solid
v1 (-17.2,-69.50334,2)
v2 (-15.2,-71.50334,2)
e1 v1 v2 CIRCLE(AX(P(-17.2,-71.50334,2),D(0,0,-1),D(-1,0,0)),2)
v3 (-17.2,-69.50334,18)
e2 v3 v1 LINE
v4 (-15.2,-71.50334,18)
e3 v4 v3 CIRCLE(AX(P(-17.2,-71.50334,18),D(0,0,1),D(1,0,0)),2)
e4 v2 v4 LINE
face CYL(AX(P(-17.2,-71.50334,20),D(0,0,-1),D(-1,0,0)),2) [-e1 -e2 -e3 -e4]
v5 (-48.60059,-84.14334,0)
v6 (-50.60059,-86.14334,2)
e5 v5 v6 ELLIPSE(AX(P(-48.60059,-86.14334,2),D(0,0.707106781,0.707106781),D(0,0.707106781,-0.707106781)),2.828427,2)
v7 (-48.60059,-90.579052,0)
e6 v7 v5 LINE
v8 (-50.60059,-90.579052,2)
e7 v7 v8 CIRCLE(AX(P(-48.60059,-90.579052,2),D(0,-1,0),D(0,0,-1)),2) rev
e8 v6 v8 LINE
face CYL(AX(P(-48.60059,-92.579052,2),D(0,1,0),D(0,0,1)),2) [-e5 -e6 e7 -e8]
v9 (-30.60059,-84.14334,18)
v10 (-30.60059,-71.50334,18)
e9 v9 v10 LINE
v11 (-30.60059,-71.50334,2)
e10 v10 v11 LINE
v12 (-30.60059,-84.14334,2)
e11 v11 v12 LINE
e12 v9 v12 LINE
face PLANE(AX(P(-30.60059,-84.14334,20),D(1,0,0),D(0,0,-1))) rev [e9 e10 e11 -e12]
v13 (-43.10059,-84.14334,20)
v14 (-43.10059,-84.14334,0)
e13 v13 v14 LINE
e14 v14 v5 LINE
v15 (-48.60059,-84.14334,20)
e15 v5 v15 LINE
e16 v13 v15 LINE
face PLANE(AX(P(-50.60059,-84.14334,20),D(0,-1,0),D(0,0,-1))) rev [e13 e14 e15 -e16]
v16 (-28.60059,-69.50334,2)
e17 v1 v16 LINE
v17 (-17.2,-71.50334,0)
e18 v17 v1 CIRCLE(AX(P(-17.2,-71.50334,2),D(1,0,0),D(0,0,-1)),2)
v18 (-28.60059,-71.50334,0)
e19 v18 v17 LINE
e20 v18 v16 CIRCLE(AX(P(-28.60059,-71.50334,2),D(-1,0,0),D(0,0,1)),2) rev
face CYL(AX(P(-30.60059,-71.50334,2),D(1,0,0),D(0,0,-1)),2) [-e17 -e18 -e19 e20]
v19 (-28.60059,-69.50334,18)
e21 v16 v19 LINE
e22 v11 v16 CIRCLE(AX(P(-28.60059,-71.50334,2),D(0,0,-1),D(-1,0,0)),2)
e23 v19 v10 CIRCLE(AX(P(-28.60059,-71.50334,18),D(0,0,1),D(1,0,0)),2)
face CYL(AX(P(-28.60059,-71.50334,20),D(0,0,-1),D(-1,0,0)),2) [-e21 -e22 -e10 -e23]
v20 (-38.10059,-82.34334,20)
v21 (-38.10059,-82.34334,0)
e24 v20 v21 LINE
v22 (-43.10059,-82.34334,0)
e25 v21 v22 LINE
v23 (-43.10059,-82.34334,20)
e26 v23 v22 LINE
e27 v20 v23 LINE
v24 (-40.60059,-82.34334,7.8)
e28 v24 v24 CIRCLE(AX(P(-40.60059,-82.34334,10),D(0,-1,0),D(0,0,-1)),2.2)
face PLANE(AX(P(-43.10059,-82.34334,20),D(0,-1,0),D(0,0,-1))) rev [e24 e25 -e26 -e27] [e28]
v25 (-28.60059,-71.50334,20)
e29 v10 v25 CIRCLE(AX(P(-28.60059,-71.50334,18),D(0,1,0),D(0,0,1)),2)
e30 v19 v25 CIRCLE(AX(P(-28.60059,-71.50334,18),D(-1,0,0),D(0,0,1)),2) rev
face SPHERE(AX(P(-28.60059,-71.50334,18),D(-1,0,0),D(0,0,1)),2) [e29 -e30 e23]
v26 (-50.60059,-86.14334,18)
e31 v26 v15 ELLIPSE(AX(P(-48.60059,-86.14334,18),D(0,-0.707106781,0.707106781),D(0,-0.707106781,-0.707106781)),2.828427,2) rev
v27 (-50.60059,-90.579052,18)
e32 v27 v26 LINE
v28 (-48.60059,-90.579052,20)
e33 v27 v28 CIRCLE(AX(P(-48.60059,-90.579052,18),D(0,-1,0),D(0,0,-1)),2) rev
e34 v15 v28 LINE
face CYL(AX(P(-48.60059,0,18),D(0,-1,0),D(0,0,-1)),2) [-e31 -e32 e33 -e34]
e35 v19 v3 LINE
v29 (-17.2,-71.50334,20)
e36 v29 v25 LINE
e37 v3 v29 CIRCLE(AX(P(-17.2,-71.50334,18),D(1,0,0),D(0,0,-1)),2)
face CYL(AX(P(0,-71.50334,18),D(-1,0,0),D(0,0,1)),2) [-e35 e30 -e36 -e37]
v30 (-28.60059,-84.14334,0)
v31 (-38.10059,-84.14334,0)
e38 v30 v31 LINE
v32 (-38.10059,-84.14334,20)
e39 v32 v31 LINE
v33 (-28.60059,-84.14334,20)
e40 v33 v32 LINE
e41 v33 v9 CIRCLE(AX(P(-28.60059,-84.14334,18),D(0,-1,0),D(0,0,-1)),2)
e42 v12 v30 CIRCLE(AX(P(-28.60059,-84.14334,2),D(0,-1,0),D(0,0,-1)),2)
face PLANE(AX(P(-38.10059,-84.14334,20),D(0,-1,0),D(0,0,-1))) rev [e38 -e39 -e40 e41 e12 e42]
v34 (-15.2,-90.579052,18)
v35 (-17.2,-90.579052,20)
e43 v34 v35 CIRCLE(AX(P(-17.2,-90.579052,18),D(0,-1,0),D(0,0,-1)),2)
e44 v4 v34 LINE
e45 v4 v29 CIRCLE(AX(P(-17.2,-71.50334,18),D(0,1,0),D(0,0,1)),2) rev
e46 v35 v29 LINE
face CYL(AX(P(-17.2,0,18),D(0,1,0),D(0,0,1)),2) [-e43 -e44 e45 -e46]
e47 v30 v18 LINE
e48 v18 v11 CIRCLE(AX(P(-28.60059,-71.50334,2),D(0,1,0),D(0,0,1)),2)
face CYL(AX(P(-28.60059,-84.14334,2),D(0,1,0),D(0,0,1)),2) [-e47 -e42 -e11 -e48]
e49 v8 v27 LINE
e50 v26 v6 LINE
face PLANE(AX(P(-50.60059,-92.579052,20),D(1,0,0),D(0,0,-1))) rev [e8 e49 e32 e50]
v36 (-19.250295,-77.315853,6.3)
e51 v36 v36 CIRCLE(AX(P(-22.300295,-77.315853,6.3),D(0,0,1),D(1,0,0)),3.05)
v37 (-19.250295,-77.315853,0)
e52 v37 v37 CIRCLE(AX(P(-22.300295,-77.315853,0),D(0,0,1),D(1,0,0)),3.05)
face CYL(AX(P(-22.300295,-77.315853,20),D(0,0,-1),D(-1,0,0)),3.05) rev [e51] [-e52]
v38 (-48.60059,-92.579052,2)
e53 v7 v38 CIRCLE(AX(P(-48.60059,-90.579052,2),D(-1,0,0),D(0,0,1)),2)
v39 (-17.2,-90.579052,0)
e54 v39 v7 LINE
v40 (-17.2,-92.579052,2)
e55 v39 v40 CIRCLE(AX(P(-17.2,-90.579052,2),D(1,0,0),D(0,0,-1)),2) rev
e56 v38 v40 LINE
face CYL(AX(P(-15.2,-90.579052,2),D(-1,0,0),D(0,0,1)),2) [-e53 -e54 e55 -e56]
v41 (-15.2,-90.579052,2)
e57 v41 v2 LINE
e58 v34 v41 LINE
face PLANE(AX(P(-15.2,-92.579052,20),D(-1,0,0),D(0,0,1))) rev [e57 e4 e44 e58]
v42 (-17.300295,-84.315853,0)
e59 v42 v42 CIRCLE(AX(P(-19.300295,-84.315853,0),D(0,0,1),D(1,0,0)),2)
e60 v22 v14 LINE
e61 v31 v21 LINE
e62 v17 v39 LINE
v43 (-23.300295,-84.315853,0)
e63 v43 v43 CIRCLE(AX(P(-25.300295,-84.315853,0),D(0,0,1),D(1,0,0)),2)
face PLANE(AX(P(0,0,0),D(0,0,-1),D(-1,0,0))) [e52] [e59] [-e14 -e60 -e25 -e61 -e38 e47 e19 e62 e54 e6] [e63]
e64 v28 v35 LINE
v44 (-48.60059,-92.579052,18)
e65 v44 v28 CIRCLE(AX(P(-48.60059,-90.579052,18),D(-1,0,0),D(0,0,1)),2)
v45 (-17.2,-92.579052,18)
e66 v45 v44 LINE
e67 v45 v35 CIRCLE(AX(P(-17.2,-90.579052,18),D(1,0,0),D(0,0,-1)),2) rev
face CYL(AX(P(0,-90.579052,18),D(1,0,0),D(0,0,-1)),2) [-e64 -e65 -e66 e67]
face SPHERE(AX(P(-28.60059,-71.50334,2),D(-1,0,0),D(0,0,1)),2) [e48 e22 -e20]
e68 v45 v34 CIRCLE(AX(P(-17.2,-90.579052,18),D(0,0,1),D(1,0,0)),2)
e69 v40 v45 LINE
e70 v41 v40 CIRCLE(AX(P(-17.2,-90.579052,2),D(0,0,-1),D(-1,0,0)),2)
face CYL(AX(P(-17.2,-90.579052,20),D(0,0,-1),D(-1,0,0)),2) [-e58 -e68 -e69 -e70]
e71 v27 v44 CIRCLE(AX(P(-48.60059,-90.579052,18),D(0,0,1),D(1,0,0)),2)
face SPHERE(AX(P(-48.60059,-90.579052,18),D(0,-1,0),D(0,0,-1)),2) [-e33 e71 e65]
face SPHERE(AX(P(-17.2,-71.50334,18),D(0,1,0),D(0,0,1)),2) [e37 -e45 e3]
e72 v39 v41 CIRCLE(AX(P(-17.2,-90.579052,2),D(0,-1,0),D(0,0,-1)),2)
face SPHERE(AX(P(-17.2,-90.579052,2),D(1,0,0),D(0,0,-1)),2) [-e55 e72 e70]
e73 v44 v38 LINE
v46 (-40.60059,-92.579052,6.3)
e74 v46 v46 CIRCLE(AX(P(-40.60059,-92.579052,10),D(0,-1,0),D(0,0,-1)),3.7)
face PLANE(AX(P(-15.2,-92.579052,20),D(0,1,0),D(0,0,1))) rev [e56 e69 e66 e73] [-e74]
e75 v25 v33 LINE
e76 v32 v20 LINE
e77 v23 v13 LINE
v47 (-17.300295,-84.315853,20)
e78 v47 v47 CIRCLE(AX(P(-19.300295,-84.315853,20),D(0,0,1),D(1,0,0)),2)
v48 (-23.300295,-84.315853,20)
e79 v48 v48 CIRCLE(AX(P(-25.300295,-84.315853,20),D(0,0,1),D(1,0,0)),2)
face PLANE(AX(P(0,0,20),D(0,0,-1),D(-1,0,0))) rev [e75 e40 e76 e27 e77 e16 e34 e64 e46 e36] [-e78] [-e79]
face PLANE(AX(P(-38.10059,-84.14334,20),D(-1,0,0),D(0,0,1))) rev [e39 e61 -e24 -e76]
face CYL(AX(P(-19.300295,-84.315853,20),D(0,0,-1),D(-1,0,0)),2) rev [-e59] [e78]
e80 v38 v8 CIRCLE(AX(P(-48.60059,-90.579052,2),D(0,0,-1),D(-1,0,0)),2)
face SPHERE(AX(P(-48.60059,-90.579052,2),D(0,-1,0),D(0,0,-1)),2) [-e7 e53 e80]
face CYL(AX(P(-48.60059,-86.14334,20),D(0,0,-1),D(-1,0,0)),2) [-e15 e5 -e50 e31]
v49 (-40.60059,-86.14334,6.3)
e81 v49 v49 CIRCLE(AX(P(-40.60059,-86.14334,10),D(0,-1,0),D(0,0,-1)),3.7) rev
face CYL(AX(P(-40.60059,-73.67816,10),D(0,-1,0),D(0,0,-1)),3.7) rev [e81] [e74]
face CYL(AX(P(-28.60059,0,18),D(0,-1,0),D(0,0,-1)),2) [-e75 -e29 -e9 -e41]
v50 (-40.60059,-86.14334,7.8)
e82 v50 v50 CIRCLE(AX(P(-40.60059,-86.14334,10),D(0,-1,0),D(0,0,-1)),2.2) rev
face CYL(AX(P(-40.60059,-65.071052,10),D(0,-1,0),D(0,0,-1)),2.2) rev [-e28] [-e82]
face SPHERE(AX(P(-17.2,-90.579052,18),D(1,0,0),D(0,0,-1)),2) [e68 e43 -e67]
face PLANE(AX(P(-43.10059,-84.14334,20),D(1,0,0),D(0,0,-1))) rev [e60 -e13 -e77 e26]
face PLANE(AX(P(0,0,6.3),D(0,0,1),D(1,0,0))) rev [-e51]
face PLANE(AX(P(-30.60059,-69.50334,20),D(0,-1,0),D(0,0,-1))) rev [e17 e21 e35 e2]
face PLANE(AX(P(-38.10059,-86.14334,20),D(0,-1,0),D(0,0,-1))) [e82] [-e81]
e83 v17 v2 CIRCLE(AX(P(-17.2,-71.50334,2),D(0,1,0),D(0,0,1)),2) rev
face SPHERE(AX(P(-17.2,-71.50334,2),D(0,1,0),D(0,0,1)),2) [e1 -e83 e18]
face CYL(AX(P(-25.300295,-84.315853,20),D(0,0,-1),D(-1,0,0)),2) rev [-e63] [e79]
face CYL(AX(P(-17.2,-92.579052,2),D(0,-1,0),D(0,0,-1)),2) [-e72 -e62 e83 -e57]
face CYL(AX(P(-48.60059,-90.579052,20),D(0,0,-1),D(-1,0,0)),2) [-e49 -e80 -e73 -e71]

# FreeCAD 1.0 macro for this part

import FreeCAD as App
import Part
import Sketcher

V = App.Vector
Q = App.Units.Quantity


def edges_at(feature, points):
    """Names of the edges that pass closest to the given points."""
    edges = feature.Shape.Edges
    near = lambda p: min(range(len(edges)), key=lambda i: edges[i].distToShape(Part.Vertex(*p))[0])
    return sorted({f"Edge{near(p) + 1}" for p in points})


def add_polygon(sketch, points):
    """Adds a closed chain of lines whose ends are joined by coincident constraints."""
    first, n = sketch.GeometryCount, len(points)
    for a, b in zip(points, points[1:] + points[:1]):
        sketch.addGeometry(Part.LineSegment(App.Vector(*a, 0), App.Vector(*b, 0)), False)
    for i in range(n):
        sketch.addConstraint(Sketcher.Constraint("Coincident", first + i, 2, first + (i + 1) % n, 1))

doc = App.newDocument("Part")
body = doc.addObject("PartDesign::Body", "Body")

sketch1 = body.newObject("Sketcher::SketchObject", "Sketch")
sketch1.AttachmentSupport = (doc.getObject("XY_Plane"), [""])
sketch1.MapMode = "FlatFace"
add_polygon(sketch1, [(-50.60059, -92.579052), (-15.2, -92.579052), (-15.2, -69.50334), (-30.60059, -69.50334), (-30.60059, -84.14334), (-38.10059, -84.14334), (-38.10059, -82.34334), (-43.10059, -82.34334), (-43.10059, -84.14334), (-50.60059, -84.14334)])
sketch1.addGeometry(Part.Circle(V(-19.300295, -84.315853, 0), V(0, 0, 1), 2), False)
sketch1.addGeometry(Part.Circle(V(-25.300295, -84.315853, 0), V(0, 0, 1), 2), False)
sketch1.addGeometry(Part.Circle(V(-22.300295, -77.315853, 0), V(0, 0, 1), 3.05), False)
sketch1.addConstraint(Sketcher.Constraint("Horizontal", 0))
sketch1.addConstraint(Sketcher.Constraint("Vertical", 1))
sketch1.addConstraint(Sketcher.Constraint("Horizontal", 2))
sketch1.addConstraint(Sketcher.Constraint("Vertical", 3))
sketch1.addConstraint(Sketcher.Constraint("Horizontal", 4))
sketch1.addConstraint(Sketcher.Constraint("Vertical", 5))
sketch1.addConstraint(Sketcher.Constraint("Horizontal", 6))
sketch1.addConstraint(Sketcher.Constraint("Vertical", 7))
sketch1.addConstraint(Sketcher.Constraint("Horizontal", 8))
sketch1.addConstraint(Sketcher.Constraint("Vertical", 9))
sketch1.addConstraint(Sketcher.Constraint("Equal", 10, 11))
sketch1.addConstraint(Sketcher.Constraint("Horizontal", 10, 3, 11, 3))
sketch1.addConstraint(Sketcher.Constraint("Horizontal", 4, 2, 7, 2))
sketch1.addConstraint(Sketcher.Constraint("Equal", 4, 8))
sketch1.addConstraint(Sketcher.Constraint("Diameter", 10, Q("4 mm")))
sketch1.addConstraint(Sketcher.Constraint("Diameter", 12, Q("6.1 mm")))
sketch1.addConstraint(Sketcher.Constraint("DistanceX", 6, 2, 6, 1, Q("5 mm")))
sketch1.addConstraint(Sketcher.Constraint("DistanceX", 4, 2, 4, 1, Q("7.5 mm")))
sketch1.addConstraint(Sketcher.Constraint("DistanceY", 5, 1, 5, 2, Q("1.8 mm")))
sketch1.addConstraint(Sketcher.Constraint("DistanceX", 11, 3, 10, 3, Q("6 mm")))
sketch1.addConstraint(Sketcher.Constraint("DistanceX", 12, 3, 10, 3, Q("3 mm")))
sketch1.addConstraint(Sketcher.Constraint("DistanceY", 10, 3, 12, 3, Q("7 mm")))
sketch1.addConstraint(Sketcher.Constraint("DistanceY", 3, 2, 3, 1, Q("14.64 mm")))
sketch1.addConstraint(Sketcher.Constraint("DistanceX", 0, 2, -1, 1, Q("15.2 mm")))
sketch1.addConstraint(Sketcher.Constraint("DistanceX", 0, 1, 0, 2, Q("35.40059 mm")))
sketch1.addConstraint(Sketcher.Constraint("DistanceY", 1, 1, 1, 2, Q("23.075712 mm")))
sketch1.addConstraint(Sketcher.Constraint("DistanceY", 0, 2, 10, 3, Q("8.263198 mm")))
sketch1.addConstraint(Sketcher.Constraint("DistanceY", 0, 2, -1, 1, Q("92.579052 mm")))
sketch1.addConstraint(Sketcher.Constraint("DistanceX", 10, 3, -1, 1, Q("19.300295 mm")))
pad1 = body.newObject("PartDesign::Pad", "Pad")
pad1.Profile = sketch1
pad1.Length = 20

sketch2 = body.newObject("Sketcher::SketchObject", "Sketch001")
sketch2.AttachmentSupport = (doc.getObject("XZ_Plane"), [""])
sketch2.MapMode = "FlatFace"
sketch2.AttachmentOffset = App.Placement(V(0, 0, 92.579052), App.Rotation())
sketch2.addGeometry(Part.Circle(V(-40.60059, 10, 0), V(0, 0, 1), 2.2), False)
sketch2.addConstraint(Sketcher.Constraint("Diameter", 0, Q("4.4 mm")))
sketch2.addConstraint(Sketcher.Constraint("DistanceY", -1, 1, 0, 3, Q("10 mm")))
sketch2.addConstraint(Sketcher.Constraint("DistanceX", 0, 3, -1, 1, Q("40.60059 mm")))
pocket1 = body.newObject("PartDesign::Pocket", "Pocket")
pocket1.Profile = sketch2
pocket1.Length = 27.508

sketch3 = body.newObject("Sketcher::SketchObject", "Sketch002")
sketch3.AttachmentSupport = (doc.getObject("XZ_Plane"), [""])
sketch3.MapMode = "FlatFace"
sketch3.AttachmentOffset = App.Placement(V(0, 0, 92.579052), App.Rotation())
sketch3.addGeometry(Part.Circle(V(-40.60059, 10, 0), V(0, 0, 1), 3.7), False)
sketch3.addGeometry(Part.Circle(V(-40.60059, 10, 0), V(0, 0, 1), 2.2), False)
sketch3.addConstraint(Sketcher.Constraint("Coincident", 1, 3, 0, 3))
sketch3.addConstraint(Sketcher.Constraint("Diameter", 0, Q("7.4 mm")))
sketch3.addConstraint(Sketcher.Constraint("Diameter", 1, Q("4.4 mm")))
sketch3.addConstraint(Sketcher.Constraint("DistanceY", -1, 1, 0, 3, Q("10 mm")))
sketch3.addConstraint(Sketcher.Constraint("DistanceX", 0, 3, -1, 1, Q("40.60059 mm")))
pocket2 = body.newObject("PartDesign::Pocket", "Pocket001")
pocket2.Profile = sketch3
pocket2.Length = 6.435712

sketch4 = body.newObject("Sketcher::SketchObject", "Sketch003")
sketch4.AttachmentSupport = (doc.getObject("XY_Plane"), [""])
sketch4.MapMode = "FlatFace"
sketch4.AttachmentOffset = App.Placement(V(0, 0, 6.3), App.Rotation())
sketch4.addGeometry(Part.Circle(V(-22.300295, -77.315853, 0), V(0, 0, 1), 3.05), False)
sketch4.addConstraint(Sketcher.Constraint("Diameter", 0, Q("6.1 mm")))
sketch4.addConstraint(Sketcher.Constraint("DistanceX", 0, 3, -1, 1, Q("22.300295 mm")))
sketch4.addConstraint(Sketcher.Constraint("DistanceY", 0, 3, -1, 1, Q("77.315853 mm")))
pad2 = body.newObject("PartDesign::Pad", "Pad001")
pad2.Profile = sketch4
pad2.Length = 13.7
doc.recompute()

fillet = body.newObject("PartDesign::Fillet", "Fillet")
fillet.Base = (pad2, edges_at(pad2, [
    (-32.9, -92.579, 0),
    (-50.601, -88.361, 0),
    (-30.601, -76.823, 20),
    (-30.601, -76.823, 0),
    (-22.9, -69.503, 0),
    (-15.2, -81.041, 0),
    (-15.2, -92.579, 10),
    (-50.601, -92.579, 10),
    (-50.601, -84.143, 10),
    (-30.601, -69.503, 10),
    (-15.2, -69.503, 10),
    (-50.601, -88.361, 20),
    (-32.9, -92.579, 20),
    (-15.2, -81.041, 20),
    (-22.9, -69.503, 20),
]))
fillet.Radius = 2

doc.recompute()
